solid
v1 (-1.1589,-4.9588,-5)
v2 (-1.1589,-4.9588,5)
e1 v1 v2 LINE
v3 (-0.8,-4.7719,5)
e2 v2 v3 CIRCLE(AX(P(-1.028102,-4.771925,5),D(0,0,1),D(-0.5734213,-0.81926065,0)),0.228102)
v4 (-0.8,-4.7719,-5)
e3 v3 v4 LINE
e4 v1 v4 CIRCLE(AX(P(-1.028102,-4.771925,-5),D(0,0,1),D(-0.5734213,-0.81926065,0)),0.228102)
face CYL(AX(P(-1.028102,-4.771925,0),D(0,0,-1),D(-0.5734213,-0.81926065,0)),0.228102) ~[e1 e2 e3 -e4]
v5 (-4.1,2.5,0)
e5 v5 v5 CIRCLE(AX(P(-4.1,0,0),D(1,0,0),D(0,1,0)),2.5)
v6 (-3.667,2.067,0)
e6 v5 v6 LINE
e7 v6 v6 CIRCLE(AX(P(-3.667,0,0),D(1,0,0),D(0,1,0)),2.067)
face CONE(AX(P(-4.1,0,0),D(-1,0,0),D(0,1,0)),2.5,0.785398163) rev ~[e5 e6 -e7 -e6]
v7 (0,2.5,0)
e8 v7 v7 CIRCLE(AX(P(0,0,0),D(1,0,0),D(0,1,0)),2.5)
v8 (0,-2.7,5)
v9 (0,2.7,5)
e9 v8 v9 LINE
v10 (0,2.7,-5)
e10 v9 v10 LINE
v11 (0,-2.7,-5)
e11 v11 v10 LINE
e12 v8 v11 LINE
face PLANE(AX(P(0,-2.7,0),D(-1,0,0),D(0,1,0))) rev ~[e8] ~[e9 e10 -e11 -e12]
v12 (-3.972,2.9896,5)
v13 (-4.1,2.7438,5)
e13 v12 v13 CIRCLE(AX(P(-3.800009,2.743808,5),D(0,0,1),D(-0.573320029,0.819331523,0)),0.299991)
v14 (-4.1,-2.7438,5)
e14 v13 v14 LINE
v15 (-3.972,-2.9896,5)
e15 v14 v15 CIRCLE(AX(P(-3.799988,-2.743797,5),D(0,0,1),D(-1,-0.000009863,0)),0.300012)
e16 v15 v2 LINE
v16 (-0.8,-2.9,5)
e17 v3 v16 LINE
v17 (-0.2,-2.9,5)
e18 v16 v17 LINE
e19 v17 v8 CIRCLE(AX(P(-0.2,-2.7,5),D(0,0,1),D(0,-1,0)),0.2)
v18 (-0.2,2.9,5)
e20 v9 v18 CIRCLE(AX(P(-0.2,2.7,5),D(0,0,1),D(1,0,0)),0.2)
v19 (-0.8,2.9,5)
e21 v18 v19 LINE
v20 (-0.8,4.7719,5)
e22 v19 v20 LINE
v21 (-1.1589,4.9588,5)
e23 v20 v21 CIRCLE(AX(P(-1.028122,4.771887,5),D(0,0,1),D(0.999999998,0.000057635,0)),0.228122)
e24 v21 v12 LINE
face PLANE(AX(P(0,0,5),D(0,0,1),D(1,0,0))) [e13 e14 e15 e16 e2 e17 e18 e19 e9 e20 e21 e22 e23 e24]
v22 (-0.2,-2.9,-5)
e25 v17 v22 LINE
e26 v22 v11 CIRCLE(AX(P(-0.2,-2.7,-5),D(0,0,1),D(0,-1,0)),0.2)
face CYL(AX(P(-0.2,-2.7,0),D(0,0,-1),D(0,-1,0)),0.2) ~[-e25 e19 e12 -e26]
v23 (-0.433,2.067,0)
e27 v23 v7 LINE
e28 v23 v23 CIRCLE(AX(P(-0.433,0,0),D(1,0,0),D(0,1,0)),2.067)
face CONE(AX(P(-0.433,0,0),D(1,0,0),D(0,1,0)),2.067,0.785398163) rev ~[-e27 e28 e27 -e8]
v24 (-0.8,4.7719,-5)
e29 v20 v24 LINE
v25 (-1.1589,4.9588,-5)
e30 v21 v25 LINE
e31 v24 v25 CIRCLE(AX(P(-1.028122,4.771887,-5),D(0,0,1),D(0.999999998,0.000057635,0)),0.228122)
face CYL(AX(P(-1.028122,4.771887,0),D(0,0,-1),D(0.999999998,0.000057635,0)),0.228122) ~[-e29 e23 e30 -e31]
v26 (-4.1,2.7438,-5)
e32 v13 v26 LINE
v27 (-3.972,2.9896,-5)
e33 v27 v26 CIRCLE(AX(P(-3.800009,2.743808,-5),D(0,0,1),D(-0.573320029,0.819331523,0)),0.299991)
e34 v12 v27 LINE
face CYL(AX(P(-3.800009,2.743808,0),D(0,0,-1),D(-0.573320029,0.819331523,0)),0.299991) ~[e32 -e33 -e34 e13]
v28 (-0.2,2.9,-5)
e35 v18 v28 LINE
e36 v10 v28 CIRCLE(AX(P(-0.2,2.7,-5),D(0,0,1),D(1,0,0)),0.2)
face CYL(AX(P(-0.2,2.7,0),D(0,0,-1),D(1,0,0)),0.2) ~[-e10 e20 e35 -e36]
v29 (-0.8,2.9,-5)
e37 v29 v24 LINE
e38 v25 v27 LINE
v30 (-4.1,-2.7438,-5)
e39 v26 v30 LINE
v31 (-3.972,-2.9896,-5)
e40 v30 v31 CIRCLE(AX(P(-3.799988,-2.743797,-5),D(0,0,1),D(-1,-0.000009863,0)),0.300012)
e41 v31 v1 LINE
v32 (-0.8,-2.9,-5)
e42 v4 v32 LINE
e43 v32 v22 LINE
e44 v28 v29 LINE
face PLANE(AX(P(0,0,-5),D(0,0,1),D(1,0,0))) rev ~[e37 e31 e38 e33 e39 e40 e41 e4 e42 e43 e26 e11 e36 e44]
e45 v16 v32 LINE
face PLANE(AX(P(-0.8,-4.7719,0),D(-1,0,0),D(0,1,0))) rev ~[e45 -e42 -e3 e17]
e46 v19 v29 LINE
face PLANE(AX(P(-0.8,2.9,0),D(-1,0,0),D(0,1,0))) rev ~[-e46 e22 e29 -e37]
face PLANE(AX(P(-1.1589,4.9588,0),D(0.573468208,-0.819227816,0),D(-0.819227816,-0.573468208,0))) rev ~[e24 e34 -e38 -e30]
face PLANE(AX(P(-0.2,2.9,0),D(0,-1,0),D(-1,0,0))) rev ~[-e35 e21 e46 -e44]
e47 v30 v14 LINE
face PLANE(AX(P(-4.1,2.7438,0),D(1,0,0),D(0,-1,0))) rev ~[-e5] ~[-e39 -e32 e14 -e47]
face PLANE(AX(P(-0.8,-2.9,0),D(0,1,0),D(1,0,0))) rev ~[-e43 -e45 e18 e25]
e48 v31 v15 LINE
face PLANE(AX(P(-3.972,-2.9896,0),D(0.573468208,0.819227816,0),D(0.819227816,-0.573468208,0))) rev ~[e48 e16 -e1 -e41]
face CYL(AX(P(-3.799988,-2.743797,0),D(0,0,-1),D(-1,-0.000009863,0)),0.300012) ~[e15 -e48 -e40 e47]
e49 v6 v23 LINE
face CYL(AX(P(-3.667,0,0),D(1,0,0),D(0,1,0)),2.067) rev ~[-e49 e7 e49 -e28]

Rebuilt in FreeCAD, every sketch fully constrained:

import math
import FreeCAD as App
import Part
import Sketcher
from FreeCAD import Vector


def add_polygon(sketch, points):
    """Adds a closed chain of lines whose ends are joined by coincident constraints."""
    first, n = sketch.GeometryCount, len(points)
    for a, b in zip(points, points[1:] + points[:1]):
        sketch.addGeometry(Part.LineSegment(App.Vector(*a, 0), App.Vector(*b, 0)), False)
    for i in range(n):
        sketch.addConstraint(Sketcher.Constraint("Coincident", first + i, 2, first + (i + 1) % n, 1))

doc = App.newDocument("Part")
body = doc.addObject("PartDesign::Body", "Body")

# Sketch on XY plane
sketch1 = body.newObject("Sketcher::SketchObject", "Sketch")
sketch1.AttachmentSupport = (doc.getObject("XY_Plane"), [""])
sketch1.MapMode = "FlatFace"
sketch1.addGeometry(Part.LineSegment(Vector(-4.1, 2.74, 0), Vector(-4.1, -2.74, 0)), False)
sketch1.addGeometry(Part.ArcOfCircle(Part.Circle(Vector(-3.8, -2.74, 0), Vector(0, 0, 1), 0.3), math.radians(180), math.radians(235)), False)
sketch1.addGeometry(Part.LineSegment(Vector(-3.97, -2.99, 0), Vector(-1.16, -4.96, 0)), False)
sketch1.addGeometry(Part.ArcOfCircle(Part.Circle(Vector(-1.03, -4.77, 0), Vector(0, 0, 1), 0.23), math.radians(-125), math.radians(0)), False)
sketch1.addGeometry(Part.LineSegment(Vector(-0.8, -4.77, 0), Vector(-0.8, -2.9, 0)), False)
sketch1.addGeometry(Part.LineSegment(Vector(-0.8, -2.9, 0), Vector(-0.2, -2.9, 0)), False)
sketch1.addGeometry(Part.ArcOfCircle(Part.Circle(Vector(-0.2, -2.7, 0), Vector(0, 0, 1), 0.2), math.radians(-90), math.radians(0)), False)
sketch1.addGeometry(Part.LineSegment(Vector(0, -2.7, 0), Vector(0, 2.7, 0)), False)
sketch1.addGeometry(Part.ArcOfCircle(Part.Circle(Vector(-0.2, 2.7, 0), Vector(0, 0, 1), 0.2), math.radians(0), math.radians(90)), False)
sketch1.addGeometry(Part.LineSegment(Vector(-0.2, 2.9, 0), Vector(-0.8, 2.9, 0)), False)
sketch1.addGeometry(Part.LineSegment(Vector(-0.8, 2.9, 0), Vector(-0.8, 4.77, 0)), False)
sketch1.addGeometry(Part.ArcOfCircle(Part.Circle(Vector(-1.03, 4.77, 0), Vector(0, 0, 1), 0.23), math.radians(0), math.radians(125)), False)
sketch1.addGeometry(Part.LineSegment(Vector(-1.16, 4.96, 0), Vector(-3.97, 2.99, 0)), False)
sketch1.addGeometry(Part.ArcOfCircle(Part.Circle(Vector(-3.8, 2.74, 0), Vector(0, 0, 1), 0.3), math.radians(125), math.radians(180)), False)
sketch1.addConstraint(Sketcher.Constraint("Tangent", 0, 2, 1, 1))
sketch1.addConstraint(Sketcher.Constraint("Tangent", 1, 2, 2, 1))
sketch1.addConstraint(Sketcher.Constraint("Tangent", 2, 2, 3, 1))
sketch1.addConstraint(Sketcher.Constraint("Tangent", 3, 2, 4, 1))
sketch1.addConstraint(Sketcher.Constraint("Coincident", 4, 2, 5, 1))
sketch1.addConstraint(Sketcher.Constraint("Tangent", 5, 2, 6, 1))
sketch1.addConstraint(Sketcher.Constraint("Tangent", 6, 2, 7, 1))
sketch1.addConstraint(Sketcher.Constraint("Tangent", 7, 2, 8, 1))
sketch1.addConstraint(Sketcher.Constraint("Tangent", 8, 2, 9, 1))
sketch1.addConstraint(Sketcher.Constraint("Coincident", 9, 2, 10, 1))
sketch1.addConstraint(Sketcher.Constraint("Tangent", 10, 2, 11, 1))
sketch1.addConstraint(Sketcher.Constraint("Tangent", 11, 2, 12, 1))
sketch1.addConstraint(Sketcher.Constraint("Tangent", 12, 2, 13, 1))
sketch1.addConstraint(Sketcher.Constraint("Tangent", 13, 2, 0, 1))
sketch1.addConstraint(Sketcher.Constraint("Vertical", 0))
sketch1.addConstraint(Sketcher.Constraint("Vertical", 4))
sketch1.addConstraint(Sketcher.Constraint("Horizontal", 5))
sketch1.addConstraint(Sketcher.Constraint("Vertical", 7))
sketch1.addConstraint(Sketcher.Constraint("Horizontal", 9))
sketch1.addConstraint(Sketcher.Constraint("Vertical", 10))
sketch1.addConstraint(Sketcher.Constraint("Equal", 6, 8))
sketch1.addConstraint(Sketcher.Constraint("Equal", 3, 11))
sketch1.addConstraint(Sketcher.Constraint("Equal", 1, 13))
sketch1.addConstraint(Sketcher.Constraint("Symmetric", 6, 2, 7, 2, -1, 1))
sketch1.addConstraint(Sketcher.Constraint("Symmetric", 3, 3, 11, 3, -1))
sketch1.addConstraint(Sketcher.Constraint("Vertical", 2, 2, 11, 2))
sketch1.addConstraint(Sketcher.Constraint("Radius", 1, 0.3))
sketch1.addConstraint(Sketcher.Constraint("Radius", 6, 0.2))
sketch1.addConstraint(Sketcher.Constraint("DistanceX", 5, 1, 5, 2, 0.6))
sketch1.addConstraint(Sketcher.Constraint("DistanceY", 7, 1, 7, 2, 5.4))
sketch1.addConstraint(Sketcher.Constraint("Radius", 11, 0.228))
sketch1.addConstraint(Sketcher.Constraint("DistanceX", 1, 3, 3, 2, 3.0))
sketch1.addConstraint(Sketcher.Constraint("DistanceY", 4, 1, 4, 2, 1.872))
sketch1.addConstraint(Sketcher.Constraint("DistanceY", 0, 2, 0, 1, 5.4876))
pad1 = body.newObject("PartDesign::Pad", "Pad")
pad1.Profile = sketch1
pad1.Length = 10
pad1.Midplane = True

# Sketch on XY plane
sketch2 = body.newObject("Sketcher::SketchObject", "Sketch001")
sketch2.AttachmentSupport = (doc.getObject("XY_Plane"), [""])
sketch2.MapMode = "FlatFace"
add_polygon(sketch2, [(-4.1, 0), (0, 0), (0, 2.5), (-0.4, 2.1), (-3.7, 2.1), (-4.1, 2.5)])  # lines 0-5
sketch2.addConstraint(Sketcher.Constraint("Horizontal", 0))
sketch2.addConstraint(Sketcher.Constraint("Vertical", 1))
sketch2.addConstraint(Sketcher.Constraint("Horizontal", 3))
sketch2.addConstraint(Sketcher.Constraint("Vertical", 5))
sketch2.addConstraint(Sketcher.Constraint("Coincident", 0, 2, -1, 1))
sketch2.addConstraint(Sketcher.Constraint("Perpendicular", 2, 4))
sketch2.addConstraint(Sketcher.Constraint("Horizontal", 1, 2, 4, 2))
sketch2.addConstraint(Sketcher.Constraint("Equal", 2, 4))
sketch2.addConstraint(Sketcher.Constraint("DistanceX", 0, 1, 0, 2, 4.1))
sketch2.addConstraint(Sketcher.Constraint("DistanceY", 1, 1, 1, 2, 2.5))
sketch2.addConstraint(Sketcher.Constraint("DistanceX", 3, 2, 3, 1, 3.234))
groove = body.newObject("PartDesign::Groove", "Groove")
groove.Profile = sketch2
groove.ReferenceAxis = (sketch2, ["H_Axis"])
groove.Angle = 360

doc.recompute()
